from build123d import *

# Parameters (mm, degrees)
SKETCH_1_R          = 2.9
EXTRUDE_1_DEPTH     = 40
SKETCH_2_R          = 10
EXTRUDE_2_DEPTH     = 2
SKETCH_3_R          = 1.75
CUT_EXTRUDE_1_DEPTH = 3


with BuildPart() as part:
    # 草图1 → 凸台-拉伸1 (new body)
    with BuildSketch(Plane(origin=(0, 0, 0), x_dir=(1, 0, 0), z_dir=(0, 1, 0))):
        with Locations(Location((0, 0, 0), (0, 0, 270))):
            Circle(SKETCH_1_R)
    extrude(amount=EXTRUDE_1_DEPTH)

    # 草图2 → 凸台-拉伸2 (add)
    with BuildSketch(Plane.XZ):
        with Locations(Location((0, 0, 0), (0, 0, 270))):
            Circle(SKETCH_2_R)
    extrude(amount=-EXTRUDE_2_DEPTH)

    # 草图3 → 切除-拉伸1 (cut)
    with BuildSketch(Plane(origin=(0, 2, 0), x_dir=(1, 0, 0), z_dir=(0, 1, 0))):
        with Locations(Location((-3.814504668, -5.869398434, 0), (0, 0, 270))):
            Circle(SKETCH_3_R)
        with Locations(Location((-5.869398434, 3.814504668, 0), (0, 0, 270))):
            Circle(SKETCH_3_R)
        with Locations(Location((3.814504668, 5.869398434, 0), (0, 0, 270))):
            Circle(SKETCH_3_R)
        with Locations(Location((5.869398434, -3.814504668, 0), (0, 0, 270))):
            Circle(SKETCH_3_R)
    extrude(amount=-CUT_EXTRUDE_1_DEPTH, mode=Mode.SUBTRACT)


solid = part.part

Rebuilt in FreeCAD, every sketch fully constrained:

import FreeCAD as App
import Part
import Sketcher
from FreeCAD import Vector
Q = App.Units.Quantity

doc = App.newDocument("Part")
body = doc.addObject("PartDesign::Body", "Body")

# Sketch on XZ plane
sketch1 = body.newObject("Sketcher::SketchObject", "Sketch")
sketch1.AttachmentSupport = (doc.getObject("XZ_Plane"), [""])
sketch1.MapMode = "FlatFace"
sketch1.addGeometry(Part.Circle(Vector(0, 0, 0), Vector(0, 0, 1), 2.9), False)
sketch1.addConstraint([
    Sketcher.Constraint("Coincident", 0, 3, -1, 1),
    Sketcher.Constraint("Diameter", 0, Q("5.8 mm")),
])
pad1 = body.newObject("PartDesign::Pad", "Pad")
pad1.Profile = sketch1
pad1.Length = 40
pad1.Reversed = True

# Sketch on XZ plane
sketch2 = body.newObject("Sketcher::SketchObject", "Sketch001")
sketch2.AttachmentSupport = (doc.getObject("XZ_Plane"), [""])
sketch2.MapMode = "FlatFace"
sketch2.addGeometry(Part.Circle(Vector(0, 0, 0), Vector(0, 0, 1), 10), False)
sketch2.addConstraint([
    Sketcher.Constraint("Coincident", 0, 3, -1, 1),
    Sketcher.Constraint("Diameter", 0, Q("20 mm")),
])
pad2 = body.newObject("PartDesign::Pad", "Pad001")
pad2.Profile = sketch2
pad2.Length = 2
pad2.Reversed = True

# Sketch on XZ plane
sketch3 = body.newObject("Sketcher::SketchObject", "Sketch002")
sketch3.AttachmentSupport = (doc.getObject("XZ_Plane"), [""])
sketch3.MapMode = "FlatFace"
sketch3.AttachmentOffset = App.Placement(Vector(0, 0, -2), App.Rotation())
sketch3.addGeometry([
    Part.Circle(Vector(-3.8, 5.9, 0), Vector(0, 0, 1), 1.8),
    Part.Circle(Vector(-5.9, -3.8, 0), Vector(0, 0, 1), 1.8),
    Part.Circle(Vector(3.8, -5.9, 0), Vector(0, 0, 1), 1.8),
    Part.Circle(Vector(5.9, 3.8, 0), Vector(0, 0, 1), 1.8),
], False)
sketch3.addConstraint([
    Sketcher.Constraint("Equal", 0, 1),
    Sketcher.Constraint("Equal", 1, 2),
    Sketcher.Constraint("Equal", 2, 3),
    Sketcher.Constraint("Symmetric", 0, 3, 2, 3, -1, 1),
    Sketcher.Constraint("Symmetric", 1, 3, 3, 3, -1, 1),
    Sketcher.Constraint("Diameter", 0, Q("3.5 mm")),
    Sketcher.Constraint("DistanceY", -1, 1, 0, 3, Q("5.869398 mm")),
    Sketcher.Constraint("DistanceX", 1, 3, -1, 1, Q("5.869398 mm")),
    Sketcher.Constraint("DistanceX", 0, 3, 2, 3, Q("7.629009 mm")),
    Sketcher.Constraint("DistanceY", 1, 3, 3, 3, Q("7.629009 mm")),
])
pocket1 = body.newObject("PartDesign::Pocket", "Pocket")
pocket1.Profile = sketch3
pocket1.Length = 3
pocket1.Reversed = True

doc.recompute()
